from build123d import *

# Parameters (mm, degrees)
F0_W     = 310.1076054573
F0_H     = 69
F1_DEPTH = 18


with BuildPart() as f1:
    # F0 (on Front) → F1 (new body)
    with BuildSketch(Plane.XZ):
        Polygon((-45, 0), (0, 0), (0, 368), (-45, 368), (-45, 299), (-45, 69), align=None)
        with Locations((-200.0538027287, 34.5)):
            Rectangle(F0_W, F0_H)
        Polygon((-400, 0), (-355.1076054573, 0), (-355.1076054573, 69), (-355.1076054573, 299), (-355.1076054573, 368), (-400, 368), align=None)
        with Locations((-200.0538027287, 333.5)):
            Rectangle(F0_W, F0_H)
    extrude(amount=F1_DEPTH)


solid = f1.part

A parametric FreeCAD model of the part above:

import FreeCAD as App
import Part
import Sketcher

V = App.Vector
Q = App.Units.Quantity


def add_polygon(sketch, points):
    """Adds a closed chain of lines whose ends are joined by coincident constraints."""
    first, n = sketch.GeometryCount, len(points)
    for a, b in zip(points, points[1:] + points[:1]):
        sketch.addGeometry(Part.LineSegment(App.Vector(*a, 0), App.Vector(*b, 0)), False)
    for i in range(n):
        sketch.addConstraint(Sketcher.Constraint("Coincident", first + i, 2, first + (i + 1) % n, 1))

doc = App.newDocument("Part")
params = doc.addObject("Spreadsheet::Sheet", "Params")
for row, (alias, value) in enumerate([
    ("sketch1_width", "400 mm"),
    ("sketch1_height", "368 mm"),
    ("sketch1_height2", "230 mm"),
    ("pad1_length", "18 mm"),
], start=1):
    params.set(f"A{row}", alias)
    params.set(f"B{row}", "=" + value)
    params.setAlias(f"B{row}", alias)

body = doc.addObject("PartDesign::Body", "Body")

sketch1 = body.newObject("Sketcher::SketchObject", "Sketch")
sketch1.AttachmentSupport = (doc.getObject("XZ_Plane"), [""])
sketch1.MapMode = "FlatFace"
add_polygon(sketch1, [(0, 0), (0, 368), (-400, 368), (-400, 0)])
add_polygon(sketch1, [(-45, 299), (-45, 69), (-355, 69), (-355, 299)])
sketch1.addConstraint([
    Sketcher.Constraint("Vertical", 0),
    Sketcher.Constraint("Horizontal", 1),
    Sketcher.Constraint("Vertical", 2),
    Sketcher.Constraint("Horizontal", 3),
    Sketcher.Constraint("Vertical", 4),
    Sketcher.Constraint("Horizontal", 5),
    Sketcher.Constraint("Vertical", 6),
    Sketcher.Constraint("Horizontal", 7),
    Sketcher.Constraint("Coincident", 3, 2, -1, 1),
    Sketcher.Constraint("DistanceX", 1, 2, 1, 1, Q("400 mm")),
    Sketcher.Constraint("DistanceY", 0, 1, 0, 2, Q("368 mm")),
    Sketcher.Constraint("DistanceY", 4, 2, 4, 1, Q("230 mm")),
    Sketcher.Constraint("DistanceX", 4, 2, -1, 1, Q("45 mm")),
    Sketcher.Constraint("DistanceY", -1, 1, 4, 2, Q("69 mm")),
    Sketcher.Constraint("DistanceX", 5, 2, 5, 1, Q("310.107605 mm")),
])
sketch1.setExpression("Constraints[17]", "Params.sketch1_width")
sketch1.setExpression("Constraints[18]", "Params.sketch1_height")
sketch1.setExpression("Constraints[19]", "Params.sketch1_height2")
pad1 = body.newObject("PartDesign::Pad", "Pad")
pad1.Profile = sketch1
pad1.setExpression("Length", "Params.pad1_length")

doc.recompute()
